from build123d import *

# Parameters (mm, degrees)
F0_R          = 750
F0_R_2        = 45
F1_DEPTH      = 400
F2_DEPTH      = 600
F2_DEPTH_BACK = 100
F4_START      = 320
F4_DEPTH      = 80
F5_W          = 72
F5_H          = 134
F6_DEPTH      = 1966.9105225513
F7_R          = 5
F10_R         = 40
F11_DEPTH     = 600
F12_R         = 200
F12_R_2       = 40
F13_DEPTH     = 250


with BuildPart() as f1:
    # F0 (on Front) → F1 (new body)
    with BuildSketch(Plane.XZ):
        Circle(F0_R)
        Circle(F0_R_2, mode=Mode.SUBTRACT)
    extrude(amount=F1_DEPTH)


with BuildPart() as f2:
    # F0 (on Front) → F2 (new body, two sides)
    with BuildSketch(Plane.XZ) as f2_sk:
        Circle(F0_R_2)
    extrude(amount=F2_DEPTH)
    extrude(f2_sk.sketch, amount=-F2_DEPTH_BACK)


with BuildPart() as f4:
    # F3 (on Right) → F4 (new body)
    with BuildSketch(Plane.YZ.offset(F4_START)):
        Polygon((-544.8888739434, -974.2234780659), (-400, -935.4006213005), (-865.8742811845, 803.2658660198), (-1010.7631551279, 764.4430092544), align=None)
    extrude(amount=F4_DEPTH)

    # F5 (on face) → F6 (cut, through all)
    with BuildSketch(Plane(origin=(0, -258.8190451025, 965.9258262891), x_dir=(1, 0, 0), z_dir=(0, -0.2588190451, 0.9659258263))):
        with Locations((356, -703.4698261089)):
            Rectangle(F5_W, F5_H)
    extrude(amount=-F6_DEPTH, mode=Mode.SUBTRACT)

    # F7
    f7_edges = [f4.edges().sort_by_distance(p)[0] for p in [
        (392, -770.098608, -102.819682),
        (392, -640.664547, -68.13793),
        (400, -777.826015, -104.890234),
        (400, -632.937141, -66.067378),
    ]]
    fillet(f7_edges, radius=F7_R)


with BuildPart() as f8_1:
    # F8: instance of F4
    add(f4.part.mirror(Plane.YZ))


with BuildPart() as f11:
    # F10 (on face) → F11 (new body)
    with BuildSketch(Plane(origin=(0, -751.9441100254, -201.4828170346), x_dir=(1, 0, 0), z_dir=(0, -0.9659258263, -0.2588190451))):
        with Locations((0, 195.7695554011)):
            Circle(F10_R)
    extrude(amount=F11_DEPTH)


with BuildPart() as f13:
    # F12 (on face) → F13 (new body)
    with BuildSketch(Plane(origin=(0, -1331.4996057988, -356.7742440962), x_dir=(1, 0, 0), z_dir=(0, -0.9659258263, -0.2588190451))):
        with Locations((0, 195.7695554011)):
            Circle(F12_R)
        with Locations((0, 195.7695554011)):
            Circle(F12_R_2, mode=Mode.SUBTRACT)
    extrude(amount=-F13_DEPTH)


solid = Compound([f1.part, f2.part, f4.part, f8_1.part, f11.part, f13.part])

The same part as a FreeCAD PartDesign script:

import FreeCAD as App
import Part
import Sketcher
Q = App.Units.Quantity


def edges_at(feature, points):
    """Names of the edges that pass closest to the given points."""
    edges = feature.Shape.Edges
    near = lambda p: min(range(len(edges)), key=lambda i: edges[i].distToShape(Part.Vertex(*p))[0])
    return sorted({f"Edge{near(p) + 1}" for p in points})

doc = App.newDocument("Part")
body = doc.addObject("PartDesign::Body", "Body")

sketch1 = body.newObject("Sketcher::SketchObject", "Sketch")
sketch1.AttachmentSupport = (doc.getObject("XZ_Plane"), [""])
sketch1.MapMode = "FlatFace"
sketch1.addGeometry(Part.Circle(App.Vector(0, 0, 0), App.Vector(0, 0, 1), 750), False)
sketch1.addGeometry(Part.Circle(App.Vector(0, 0, 0), App.Vector(0, 0, 1), 45), False)
sketch1.addConstraint(Sketcher.Constraint("Coincident", 0, 3, -1, 1))
sketch1.addConstraint(Sketcher.Constraint("Coincident", 1, 3, -1, 1))
sketch1.addConstraint(Sketcher.Constraint("Diameter", 0, 1500.0))
sketch1.addConstraint(Sketcher.Constraint("Diameter", 1, 90.0))
pad1 = body.newObject("PartDesign::Pad", "Pad")
pad1.Profile = sketch1
pad1.Length = 400
body2 = doc.addObject("PartDesign::Body", "Body001")

sketch2 = body2.newObject("Sketcher::SketchObject", "Sketch001")
sketch2.AttachmentSupport = (doc.getObject("XZ_Plane001"), [""])
sketch2.MapMode = "FlatFace"
sketch2.addGeometry(Part.Circle(App.Vector(0, 0, 0), App.Vector(0, 0, 1), 45), False)
sketch2.addConstraint(Sketcher.Constraint("Coincident", 0, 3, -1, 1))
sketch2.addConstraint(Sketcher.Constraint("Diameter", 0, 90.0))
pad2 = body2.newObject("PartDesign::Pad", "Pad001")
pad2.Profile = sketch2
pad2.Type = "TwoLengths"
pad2.Length = 600
pad2.Length2 = 100
body3 = doc.addObject("PartDesign::Body", "Body002")

sketch3 = body3.newObject("Sketcher::SketchObject", "Sketch002")
sketch3.AttachmentSupport = (doc.getObject("YZ_Plane002"), [""])
sketch3.MapMode = "FlatFace"
sketch3.AttachmentOffset = App.Placement(App.Vector(0, 0, 320), App.Rotation())
sketch3.addGeometry(Part.LineSegment(App.Vector(-545, -974, 0), App.Vector(-400, -935, 0)), False)
sketch3.addGeometry(Part.LineSegment(App.Vector(-400, -935, 0), App.Vector(-866, 803, 0)), False)
sketch3.addGeometry(Part.LineSegment(App.Vector(-866, 803, 0), App.Vector(-1011, 764, 0)), False)
sketch3.addGeometry(Part.LineSegment(App.Vector(-1011, 764, 0), App.Vector(-545, -974, 0)), False)
sketch3.addConstraint(Sketcher.Constraint("Coincident", 0, 2, 1, 1))
sketch3.addConstraint(Sketcher.Constraint("Coincident", 1, 2, 2, 1))
sketch3.addConstraint(Sketcher.Constraint("Coincident", 2, 2, 3, 1))
sketch3.addConstraint(Sketcher.Constraint("Coincident", 3, 2, 0, 1))
sketch3.addConstraint(Sketcher.Constraint("Perpendicular", 0, 1))
sketch3.addConstraint(Sketcher.Constraint("Perpendicular", 1, 2))
sketch3.addConstraint(Sketcher.Constraint("Perpendicular", 2, 3))
sketch3.addConstraint(Sketcher.Constraint("Angle", 0, Q("15 deg")))
sketch3.addConstraint(Sketcher.Constraint("Distance", 0, 150.0))
sketch3.addConstraint(Sketcher.Constraint("Distance", 1, 1800.0))
sketch3.addConstraint(Sketcher.Constraint("DistanceX", 0, 2, -1, 1, 400.0))
sketch3.addConstraint(Sketcher.Constraint("DistanceY", 0, 2, -1, 1, 935.400621))
pad3 = body3.newObject("PartDesign::Pad", "Pad002")
pad3.Profile = sketch3
pad3.Length = 80

sketch4 = body3.newObject("Sketcher::SketchObject", "Sketch003")
sketch4.Placement = App.Placement(App.Vector(0, -258.819045, 965.925826), App.Rotation(App.Vector(1, 0, 0), App.Vector(0, 0.965925826, 0.258819045), App.Vector(0, -0.258819045, 0.965925826), "ZXY"))
sketch4.addGeometry(Part.LineSegment(App.Vector(320, -636, 0), App.Vector(320, -770, 0)), False)
sketch4.addGeometry(Part.LineSegment(App.Vector(320, -770, 0), App.Vector(392, -770, 0)), False)
sketch4.addGeometry(Part.LineSegment(App.Vector(392, -770, 0), App.Vector(392, -636, 0)), False)
sketch4.addGeometry(Part.LineSegment(App.Vector(392, -636, 0), App.Vector(320, -636, 0)), False)
sketch4.addConstraint(Sketcher.Constraint("Coincident", 0, 2, 1, 1))
sketch4.addConstraint(Sketcher.Constraint("Coincident", 1, 2, 2, 1))
sketch4.addConstraint(Sketcher.Constraint("Coincident", 2, 2, 3, 1))
sketch4.addConstraint(Sketcher.Constraint("Coincident", 3, 2, 0, 1))
sketch4.addConstraint(Sketcher.Constraint("Vertical", 0))
sketch4.addConstraint(Sketcher.Constraint("Horizontal", 1))
sketch4.addConstraint(Sketcher.Constraint("Vertical", 2))
sketch4.addConstraint(Sketcher.Constraint("Horizontal", 3))
sketch4.addConstraint(Sketcher.Constraint("DistanceX", 1, 1, 1, 2, 72.0))
sketch4.addConstraint(Sketcher.Constraint("DistanceY", 0, 2, 0, 1, 134.0))
sketch4.addConstraint(Sketcher.Constraint("DistanceX", -1, 1, 0, 2, 320.0))
sketch4.addConstraint(Sketcher.Constraint("DistanceY", 0, 2, -1, 1, 770.469826))
pocket1 = body3.newObject("PartDesign::Pocket", "Pocket")
pocket1.Profile = sketch4
pocket1.Type = "ThroughAll"
doc.recompute()

fillet = body3.newObject("PartDesign::Fillet", "Fillet")
fillet.Base = (pocket1, edges_at(pocket1, [
    (392, -770.099, -102.82),
    (392, -640.665, -68.138),
    (400, -777.826, -104.89),
    (400, -632.937, -66.067),
]))
fillet.Radius = 5
body4 = doc.addObject("PartDesign::Body", "Body003")
doc.recompute()

mirroring = doc.addObject("Part::Mirroring", "Mirroring")
mirroring.Source = body3
mirroring.Base = App.Vector(0, 0, 0)
mirroring.Normal = App.Vector(1, 0, 0)
body4.BaseFeature = mirroring
doc.recompute()
body5 = doc.addObject("PartDesign::Body", "Body004")

sketch5 = body5.newObject("Sketcher::SketchObject", "Sketch004")
sketch5.Placement = App.Placement(App.Vector(0, -751.94411, -201.482817), App.Rotation(App.Vector(1, 0, 0), App.Vector(0, -0.258819045, 0.965925826), App.Vector(0, -0.965925826, -0.258819045), "ZXY"))
sketch5.addGeometry(Part.Circle(App.Vector(0, 196, 0), App.Vector(0, 0, 1), 40), False)
sketch5.addConstraint(Sketcher.Constraint("PointOnObject", 0, 3, -2))
sketch5.addConstraint(Sketcher.Constraint("Diameter", 0, 80.0))
sketch5.addConstraint(Sketcher.Constraint("DistanceY", -1, 1, 0, 3, 195.769555))
pad4 = body5.newObject("PartDesign::Pad", "Pad003")
pad4.Profile = sketch5
pad4.Length = 600
body6 = doc.addObject("PartDesign::Body", "Body005")

sketch6 = body6.newObject("Sketcher::SketchObject", "Sketch005")
sketch6.Placement = App.Placement(App.Vector(0, -1331.499606, -356.774244), App.Rotation(App.Vector(1, 0, 0), App.Vector(0, -0.258819045, 0.965925826), App.Vector(0, -0.965925826, -0.258819045), "ZXY"))
sketch6.addGeometry(Part.Circle(App.Vector(0, 196, 0), App.Vector(0, 0, 1), 200), False)
sketch6.addGeometry(Part.Circle(App.Vector(0, 196, 0), App.Vector(0, 0, 1), 40), False)
sketch6.addConstraint(Sketcher.Constraint("Coincident", 1, 3, 0, 3))
sketch6.addConstraint(Sketcher.Constraint("PointOnObject", 0, 3, -2))
sketch6.addConstraint(Sketcher.Constraint("Diameter", 0, 400.0))
sketch6.addConstraint(Sketcher.Constraint("Diameter", 1, 80.0))
sketch6.addConstraint(Sketcher.Constraint("DistanceY", -1, 1, 0, 3, 195.769555))
pad5 = body6.newObject("PartDesign::Pad", "Pad004")
pad5.Profile = sketch6
pad5.Length = 250
pad5.Reversed = True
mirroring.Visibility = False

doc.recompute()
